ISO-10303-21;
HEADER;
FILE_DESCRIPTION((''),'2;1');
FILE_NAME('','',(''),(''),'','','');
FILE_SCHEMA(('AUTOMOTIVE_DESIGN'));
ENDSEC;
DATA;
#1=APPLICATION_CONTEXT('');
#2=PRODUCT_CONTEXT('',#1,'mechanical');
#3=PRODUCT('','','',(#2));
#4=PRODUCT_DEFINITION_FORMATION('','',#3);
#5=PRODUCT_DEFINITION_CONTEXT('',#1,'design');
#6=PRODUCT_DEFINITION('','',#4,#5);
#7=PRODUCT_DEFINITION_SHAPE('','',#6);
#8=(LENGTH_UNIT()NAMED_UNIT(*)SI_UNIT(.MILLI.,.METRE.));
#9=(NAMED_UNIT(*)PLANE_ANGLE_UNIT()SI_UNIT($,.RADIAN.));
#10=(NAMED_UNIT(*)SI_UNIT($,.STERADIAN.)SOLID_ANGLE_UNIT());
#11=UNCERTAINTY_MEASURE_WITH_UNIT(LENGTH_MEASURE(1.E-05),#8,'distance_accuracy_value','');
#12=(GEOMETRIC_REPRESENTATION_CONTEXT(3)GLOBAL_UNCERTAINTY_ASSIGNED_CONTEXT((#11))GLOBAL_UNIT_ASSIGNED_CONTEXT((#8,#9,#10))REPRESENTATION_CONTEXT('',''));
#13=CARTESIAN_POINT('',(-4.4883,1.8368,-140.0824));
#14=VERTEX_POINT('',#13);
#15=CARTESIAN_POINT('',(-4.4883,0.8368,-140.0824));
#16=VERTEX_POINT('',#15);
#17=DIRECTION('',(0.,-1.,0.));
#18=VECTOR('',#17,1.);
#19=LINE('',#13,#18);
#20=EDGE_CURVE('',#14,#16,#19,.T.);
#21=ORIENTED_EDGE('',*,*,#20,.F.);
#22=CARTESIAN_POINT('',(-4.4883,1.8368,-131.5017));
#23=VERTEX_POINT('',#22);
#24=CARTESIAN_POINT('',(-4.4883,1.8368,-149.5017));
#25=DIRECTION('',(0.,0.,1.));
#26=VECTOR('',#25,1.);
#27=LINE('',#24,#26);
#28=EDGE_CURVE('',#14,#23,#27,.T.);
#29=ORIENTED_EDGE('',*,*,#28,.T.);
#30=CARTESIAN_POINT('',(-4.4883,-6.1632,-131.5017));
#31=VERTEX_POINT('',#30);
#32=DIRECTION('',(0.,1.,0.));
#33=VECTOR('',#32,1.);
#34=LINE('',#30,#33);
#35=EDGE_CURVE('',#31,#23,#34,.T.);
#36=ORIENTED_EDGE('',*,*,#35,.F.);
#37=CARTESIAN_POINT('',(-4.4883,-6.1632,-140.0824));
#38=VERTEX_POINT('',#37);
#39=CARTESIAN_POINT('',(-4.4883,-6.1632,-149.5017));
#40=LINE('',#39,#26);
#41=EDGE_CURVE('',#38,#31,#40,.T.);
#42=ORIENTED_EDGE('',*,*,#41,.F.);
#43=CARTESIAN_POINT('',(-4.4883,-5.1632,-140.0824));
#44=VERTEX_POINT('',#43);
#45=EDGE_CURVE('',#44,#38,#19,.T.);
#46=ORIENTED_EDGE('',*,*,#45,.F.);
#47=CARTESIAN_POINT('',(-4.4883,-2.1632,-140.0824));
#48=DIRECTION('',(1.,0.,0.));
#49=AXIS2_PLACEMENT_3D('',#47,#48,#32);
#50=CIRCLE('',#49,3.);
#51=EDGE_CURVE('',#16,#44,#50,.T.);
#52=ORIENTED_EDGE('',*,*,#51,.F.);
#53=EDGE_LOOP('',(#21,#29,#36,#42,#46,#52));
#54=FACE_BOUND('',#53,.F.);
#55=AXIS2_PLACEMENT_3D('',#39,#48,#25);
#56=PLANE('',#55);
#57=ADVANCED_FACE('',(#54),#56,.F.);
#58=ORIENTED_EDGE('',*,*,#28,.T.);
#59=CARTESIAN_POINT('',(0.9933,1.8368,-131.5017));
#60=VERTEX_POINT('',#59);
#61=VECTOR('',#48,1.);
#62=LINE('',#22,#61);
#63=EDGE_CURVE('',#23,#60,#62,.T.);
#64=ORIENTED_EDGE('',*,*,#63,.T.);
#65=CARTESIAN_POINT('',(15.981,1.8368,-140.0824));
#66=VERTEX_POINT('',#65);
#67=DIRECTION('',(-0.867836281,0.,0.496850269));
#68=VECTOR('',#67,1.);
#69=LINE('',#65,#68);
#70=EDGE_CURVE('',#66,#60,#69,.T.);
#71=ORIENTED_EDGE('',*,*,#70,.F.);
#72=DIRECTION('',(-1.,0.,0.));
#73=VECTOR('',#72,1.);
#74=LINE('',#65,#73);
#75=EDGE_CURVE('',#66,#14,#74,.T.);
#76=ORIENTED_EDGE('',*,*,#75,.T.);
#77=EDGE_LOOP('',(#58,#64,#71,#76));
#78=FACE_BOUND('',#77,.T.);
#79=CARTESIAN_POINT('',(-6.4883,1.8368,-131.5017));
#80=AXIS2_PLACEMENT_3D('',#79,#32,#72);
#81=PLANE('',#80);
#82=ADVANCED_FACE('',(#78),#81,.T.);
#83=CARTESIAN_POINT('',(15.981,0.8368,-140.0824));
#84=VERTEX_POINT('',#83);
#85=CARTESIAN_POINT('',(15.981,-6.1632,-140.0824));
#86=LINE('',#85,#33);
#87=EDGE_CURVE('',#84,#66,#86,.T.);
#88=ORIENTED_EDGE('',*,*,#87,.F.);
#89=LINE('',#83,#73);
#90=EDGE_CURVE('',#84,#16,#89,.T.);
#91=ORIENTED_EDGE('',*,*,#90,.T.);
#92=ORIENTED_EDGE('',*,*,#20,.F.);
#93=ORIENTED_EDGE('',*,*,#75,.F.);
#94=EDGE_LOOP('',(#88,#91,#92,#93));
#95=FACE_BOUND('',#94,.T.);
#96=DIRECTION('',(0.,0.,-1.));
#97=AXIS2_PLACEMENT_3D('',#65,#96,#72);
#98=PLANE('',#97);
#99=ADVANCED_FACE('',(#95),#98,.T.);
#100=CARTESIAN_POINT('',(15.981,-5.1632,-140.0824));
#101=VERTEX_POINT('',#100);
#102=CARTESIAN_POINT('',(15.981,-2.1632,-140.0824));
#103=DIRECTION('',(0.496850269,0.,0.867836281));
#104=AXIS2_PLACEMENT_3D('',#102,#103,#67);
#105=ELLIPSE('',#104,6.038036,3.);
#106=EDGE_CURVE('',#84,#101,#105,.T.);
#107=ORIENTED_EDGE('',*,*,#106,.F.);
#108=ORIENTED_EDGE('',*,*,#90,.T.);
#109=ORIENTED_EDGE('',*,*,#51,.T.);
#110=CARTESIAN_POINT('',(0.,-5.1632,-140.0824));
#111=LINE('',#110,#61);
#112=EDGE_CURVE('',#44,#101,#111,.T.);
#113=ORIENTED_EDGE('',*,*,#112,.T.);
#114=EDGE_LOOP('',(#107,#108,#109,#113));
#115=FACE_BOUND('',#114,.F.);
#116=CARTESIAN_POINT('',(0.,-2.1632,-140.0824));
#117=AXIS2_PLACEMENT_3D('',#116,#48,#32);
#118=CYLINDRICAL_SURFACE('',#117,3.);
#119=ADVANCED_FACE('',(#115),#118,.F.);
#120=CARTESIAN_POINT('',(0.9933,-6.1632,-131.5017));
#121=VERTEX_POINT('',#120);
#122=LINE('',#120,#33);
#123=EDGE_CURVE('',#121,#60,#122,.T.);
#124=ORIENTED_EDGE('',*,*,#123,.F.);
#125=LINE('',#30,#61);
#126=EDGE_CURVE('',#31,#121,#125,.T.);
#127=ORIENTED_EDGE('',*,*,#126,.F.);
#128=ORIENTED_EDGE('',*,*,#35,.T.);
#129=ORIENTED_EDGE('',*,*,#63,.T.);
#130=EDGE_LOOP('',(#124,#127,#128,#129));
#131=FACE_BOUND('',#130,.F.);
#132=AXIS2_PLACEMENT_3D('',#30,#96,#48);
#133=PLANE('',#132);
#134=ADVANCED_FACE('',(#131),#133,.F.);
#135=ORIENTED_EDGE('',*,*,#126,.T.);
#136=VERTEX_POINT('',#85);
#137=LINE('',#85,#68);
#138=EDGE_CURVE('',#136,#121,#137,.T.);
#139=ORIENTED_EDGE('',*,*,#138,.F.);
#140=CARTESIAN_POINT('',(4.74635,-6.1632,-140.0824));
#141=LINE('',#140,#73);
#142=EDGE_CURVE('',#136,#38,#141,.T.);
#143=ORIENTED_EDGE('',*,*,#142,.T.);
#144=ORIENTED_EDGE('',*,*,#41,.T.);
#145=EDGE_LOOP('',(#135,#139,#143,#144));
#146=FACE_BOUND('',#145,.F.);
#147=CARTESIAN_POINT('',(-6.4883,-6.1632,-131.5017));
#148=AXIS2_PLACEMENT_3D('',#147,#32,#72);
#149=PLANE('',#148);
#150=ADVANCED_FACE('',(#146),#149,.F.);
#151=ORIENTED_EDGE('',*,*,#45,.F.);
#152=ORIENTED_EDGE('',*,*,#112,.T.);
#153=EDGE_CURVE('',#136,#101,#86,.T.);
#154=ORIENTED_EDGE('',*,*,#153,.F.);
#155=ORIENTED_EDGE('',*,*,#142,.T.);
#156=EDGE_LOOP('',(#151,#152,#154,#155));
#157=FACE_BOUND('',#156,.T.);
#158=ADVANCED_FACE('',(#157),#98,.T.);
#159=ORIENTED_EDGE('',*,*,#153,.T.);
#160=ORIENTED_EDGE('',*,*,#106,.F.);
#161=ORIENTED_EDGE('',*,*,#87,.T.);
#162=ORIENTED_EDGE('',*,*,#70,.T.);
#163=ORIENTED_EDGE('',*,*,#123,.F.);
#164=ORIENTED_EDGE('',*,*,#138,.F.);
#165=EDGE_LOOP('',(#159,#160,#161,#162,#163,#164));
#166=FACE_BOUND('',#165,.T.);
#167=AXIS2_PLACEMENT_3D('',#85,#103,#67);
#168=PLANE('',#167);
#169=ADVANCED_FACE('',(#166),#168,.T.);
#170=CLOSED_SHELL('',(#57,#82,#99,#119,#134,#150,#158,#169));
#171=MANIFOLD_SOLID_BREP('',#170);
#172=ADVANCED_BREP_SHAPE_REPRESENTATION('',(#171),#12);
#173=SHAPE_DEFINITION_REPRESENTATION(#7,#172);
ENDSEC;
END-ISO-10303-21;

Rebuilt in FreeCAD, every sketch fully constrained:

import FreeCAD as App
import Part
import Sketcher
from FreeCAD import Vector
Q = App.Units.Quantity


def add_polygon(sketch, points):
    """Adds a closed chain of lines whose ends are joined by coincident constraints."""
    first, n = sketch.GeometryCount, len(points)
    for a, b in zip(points, points[1:] + points[:1]):
        sketch.addGeometry(Part.LineSegment(App.Vector(*a, 0), App.Vector(*b, 0)), False)
    for i in range(n):
        sketch.addConstraint(Sketcher.Constraint("Coincident", first + i, 2, first + (i + 1) % n, 1))

doc = App.newDocument("Part")
body = doc.addObject("PartDesign::Body", "Body")

# Sketch on XZ plane
sketch1 = body.newObject("Sketcher::SketchObject", "Sketch")
sketch1.AttachmentSupport = (doc.getObject("XZ_Plane"), [""])
sketch1.MapMode = "FlatFace"
sketch1.AttachmentOffset = App.Placement(Vector(0, 0, 6.1632), App.Rotation())
add_polygon(sketch1, [(-0.2, -149.5), (-4.5, -149.5), (-4.5, -131.5), (1, -131.5), (16, -140.1)])  # lines 0-4
sketch1.addConstraint([
    Sketcher.Constraint("Horizontal", 0),
    Sketcher.Constraint("Vertical", 1),
    Sketcher.Constraint("Horizontal", 2),
    Sketcher.Constraint("DistanceY", 1, 1, 1, 2, Q("18 mm")),
    Sketcher.Constraint("Distance", 4, Q("18.721 mm")),
    Sketcher.Constraint("DistanceX", 0, 2, 0, 1, Q("4.2906 mm")),
    Sketcher.Constraint("DistanceX", 2, 1, 2, 2, Q("5.4816 mm")),
    Sketcher.Constraint("DistanceX", -1, 1, 3, 2, Q("15.981 mm")),
    Sketcher.Constraint("Distance", 3, Q("17.2702 mm")),
    Sketcher.Constraint("DistanceY", 0, 2, -1, 1, Q("149.5017 mm")),
])
pad1 = body.newObject("PartDesign::Pad", "Pad")
pad1.Profile = sketch1
pad1.Length = 8
pad1.Reversed = True

# Sketch on YZ plane
sketch2 = body.newObject("Sketcher::SketchObject", "Sketch001")
sketch2.AttachmentSupport = (doc.getObject("YZ_Plane"), [""])
sketch2.MapMode = "FlatFace"
sketch2.addGeometry(Part.Circle(Vector(-2.2, -140.1, 0), Vector(0, 0, 1), 3), False)
sketch2.addConstraint([
    Sketcher.Constraint("Diameter", 0, Q("6 mm")),
    Sketcher.Constraint("DistanceX", 0, 3, -1, 1, Q("2.1632 mm")),
    Sketcher.Constraint("DistanceY", 0, 3, -1, 1, Q("140.0824 mm")),
])
pocket1 = body.newObject("PartDesign::Pocket", "Pocket")
pocket1.Profile = sketch2
pocket1.Type = "ThroughAll"
pocket1.Midplane = True

# Sketch on XZ plane
sketch3 = body.newObject("Sketcher::SketchObject", "Sketch002")
sketch3.AttachmentSupport = (doc.getObject("XZ_Plane"), [""])
sketch3.MapMode = "FlatFace"
sketch3.AttachmentOffset = App.Placement(Vector(0, 0, -1.8368), App.Rotation())
add_polygon(sketch3, [(16, -150), (-4, -150), (-4, -140), (16, -140)])  # lines 0-3
sketch3.addConstraint([
    Sketcher.Constraint("Horizontal", 0),
    Sketcher.Constraint("Vertical", 1),
    Sketcher.Constraint("Horizontal", 2),
    Sketcher.Constraint("Vertical", 3),
    Sketcher.Constraint("DistanceX", 0, 2, 0, 1, Q("20.4693 mm")),
    Sketcher.Constraint("DistanceY", 1, 1, 1, 2, Q("9.4193 mm")),
    Sketcher.Constraint("DistanceX", -1, 1, 2, 2, Q("15.981 mm")),
    Sketcher.Constraint("DistanceY", 0, 2, -1, 1, Q("149.5017 mm")),
])
pocket2 = body.newObject("PartDesign::Pocket", "Pocket001")
pocket2.Profile = sketch3
pocket2.Type = "ThroughAll"
pocket2.Reversed = True

doc.recompute()
